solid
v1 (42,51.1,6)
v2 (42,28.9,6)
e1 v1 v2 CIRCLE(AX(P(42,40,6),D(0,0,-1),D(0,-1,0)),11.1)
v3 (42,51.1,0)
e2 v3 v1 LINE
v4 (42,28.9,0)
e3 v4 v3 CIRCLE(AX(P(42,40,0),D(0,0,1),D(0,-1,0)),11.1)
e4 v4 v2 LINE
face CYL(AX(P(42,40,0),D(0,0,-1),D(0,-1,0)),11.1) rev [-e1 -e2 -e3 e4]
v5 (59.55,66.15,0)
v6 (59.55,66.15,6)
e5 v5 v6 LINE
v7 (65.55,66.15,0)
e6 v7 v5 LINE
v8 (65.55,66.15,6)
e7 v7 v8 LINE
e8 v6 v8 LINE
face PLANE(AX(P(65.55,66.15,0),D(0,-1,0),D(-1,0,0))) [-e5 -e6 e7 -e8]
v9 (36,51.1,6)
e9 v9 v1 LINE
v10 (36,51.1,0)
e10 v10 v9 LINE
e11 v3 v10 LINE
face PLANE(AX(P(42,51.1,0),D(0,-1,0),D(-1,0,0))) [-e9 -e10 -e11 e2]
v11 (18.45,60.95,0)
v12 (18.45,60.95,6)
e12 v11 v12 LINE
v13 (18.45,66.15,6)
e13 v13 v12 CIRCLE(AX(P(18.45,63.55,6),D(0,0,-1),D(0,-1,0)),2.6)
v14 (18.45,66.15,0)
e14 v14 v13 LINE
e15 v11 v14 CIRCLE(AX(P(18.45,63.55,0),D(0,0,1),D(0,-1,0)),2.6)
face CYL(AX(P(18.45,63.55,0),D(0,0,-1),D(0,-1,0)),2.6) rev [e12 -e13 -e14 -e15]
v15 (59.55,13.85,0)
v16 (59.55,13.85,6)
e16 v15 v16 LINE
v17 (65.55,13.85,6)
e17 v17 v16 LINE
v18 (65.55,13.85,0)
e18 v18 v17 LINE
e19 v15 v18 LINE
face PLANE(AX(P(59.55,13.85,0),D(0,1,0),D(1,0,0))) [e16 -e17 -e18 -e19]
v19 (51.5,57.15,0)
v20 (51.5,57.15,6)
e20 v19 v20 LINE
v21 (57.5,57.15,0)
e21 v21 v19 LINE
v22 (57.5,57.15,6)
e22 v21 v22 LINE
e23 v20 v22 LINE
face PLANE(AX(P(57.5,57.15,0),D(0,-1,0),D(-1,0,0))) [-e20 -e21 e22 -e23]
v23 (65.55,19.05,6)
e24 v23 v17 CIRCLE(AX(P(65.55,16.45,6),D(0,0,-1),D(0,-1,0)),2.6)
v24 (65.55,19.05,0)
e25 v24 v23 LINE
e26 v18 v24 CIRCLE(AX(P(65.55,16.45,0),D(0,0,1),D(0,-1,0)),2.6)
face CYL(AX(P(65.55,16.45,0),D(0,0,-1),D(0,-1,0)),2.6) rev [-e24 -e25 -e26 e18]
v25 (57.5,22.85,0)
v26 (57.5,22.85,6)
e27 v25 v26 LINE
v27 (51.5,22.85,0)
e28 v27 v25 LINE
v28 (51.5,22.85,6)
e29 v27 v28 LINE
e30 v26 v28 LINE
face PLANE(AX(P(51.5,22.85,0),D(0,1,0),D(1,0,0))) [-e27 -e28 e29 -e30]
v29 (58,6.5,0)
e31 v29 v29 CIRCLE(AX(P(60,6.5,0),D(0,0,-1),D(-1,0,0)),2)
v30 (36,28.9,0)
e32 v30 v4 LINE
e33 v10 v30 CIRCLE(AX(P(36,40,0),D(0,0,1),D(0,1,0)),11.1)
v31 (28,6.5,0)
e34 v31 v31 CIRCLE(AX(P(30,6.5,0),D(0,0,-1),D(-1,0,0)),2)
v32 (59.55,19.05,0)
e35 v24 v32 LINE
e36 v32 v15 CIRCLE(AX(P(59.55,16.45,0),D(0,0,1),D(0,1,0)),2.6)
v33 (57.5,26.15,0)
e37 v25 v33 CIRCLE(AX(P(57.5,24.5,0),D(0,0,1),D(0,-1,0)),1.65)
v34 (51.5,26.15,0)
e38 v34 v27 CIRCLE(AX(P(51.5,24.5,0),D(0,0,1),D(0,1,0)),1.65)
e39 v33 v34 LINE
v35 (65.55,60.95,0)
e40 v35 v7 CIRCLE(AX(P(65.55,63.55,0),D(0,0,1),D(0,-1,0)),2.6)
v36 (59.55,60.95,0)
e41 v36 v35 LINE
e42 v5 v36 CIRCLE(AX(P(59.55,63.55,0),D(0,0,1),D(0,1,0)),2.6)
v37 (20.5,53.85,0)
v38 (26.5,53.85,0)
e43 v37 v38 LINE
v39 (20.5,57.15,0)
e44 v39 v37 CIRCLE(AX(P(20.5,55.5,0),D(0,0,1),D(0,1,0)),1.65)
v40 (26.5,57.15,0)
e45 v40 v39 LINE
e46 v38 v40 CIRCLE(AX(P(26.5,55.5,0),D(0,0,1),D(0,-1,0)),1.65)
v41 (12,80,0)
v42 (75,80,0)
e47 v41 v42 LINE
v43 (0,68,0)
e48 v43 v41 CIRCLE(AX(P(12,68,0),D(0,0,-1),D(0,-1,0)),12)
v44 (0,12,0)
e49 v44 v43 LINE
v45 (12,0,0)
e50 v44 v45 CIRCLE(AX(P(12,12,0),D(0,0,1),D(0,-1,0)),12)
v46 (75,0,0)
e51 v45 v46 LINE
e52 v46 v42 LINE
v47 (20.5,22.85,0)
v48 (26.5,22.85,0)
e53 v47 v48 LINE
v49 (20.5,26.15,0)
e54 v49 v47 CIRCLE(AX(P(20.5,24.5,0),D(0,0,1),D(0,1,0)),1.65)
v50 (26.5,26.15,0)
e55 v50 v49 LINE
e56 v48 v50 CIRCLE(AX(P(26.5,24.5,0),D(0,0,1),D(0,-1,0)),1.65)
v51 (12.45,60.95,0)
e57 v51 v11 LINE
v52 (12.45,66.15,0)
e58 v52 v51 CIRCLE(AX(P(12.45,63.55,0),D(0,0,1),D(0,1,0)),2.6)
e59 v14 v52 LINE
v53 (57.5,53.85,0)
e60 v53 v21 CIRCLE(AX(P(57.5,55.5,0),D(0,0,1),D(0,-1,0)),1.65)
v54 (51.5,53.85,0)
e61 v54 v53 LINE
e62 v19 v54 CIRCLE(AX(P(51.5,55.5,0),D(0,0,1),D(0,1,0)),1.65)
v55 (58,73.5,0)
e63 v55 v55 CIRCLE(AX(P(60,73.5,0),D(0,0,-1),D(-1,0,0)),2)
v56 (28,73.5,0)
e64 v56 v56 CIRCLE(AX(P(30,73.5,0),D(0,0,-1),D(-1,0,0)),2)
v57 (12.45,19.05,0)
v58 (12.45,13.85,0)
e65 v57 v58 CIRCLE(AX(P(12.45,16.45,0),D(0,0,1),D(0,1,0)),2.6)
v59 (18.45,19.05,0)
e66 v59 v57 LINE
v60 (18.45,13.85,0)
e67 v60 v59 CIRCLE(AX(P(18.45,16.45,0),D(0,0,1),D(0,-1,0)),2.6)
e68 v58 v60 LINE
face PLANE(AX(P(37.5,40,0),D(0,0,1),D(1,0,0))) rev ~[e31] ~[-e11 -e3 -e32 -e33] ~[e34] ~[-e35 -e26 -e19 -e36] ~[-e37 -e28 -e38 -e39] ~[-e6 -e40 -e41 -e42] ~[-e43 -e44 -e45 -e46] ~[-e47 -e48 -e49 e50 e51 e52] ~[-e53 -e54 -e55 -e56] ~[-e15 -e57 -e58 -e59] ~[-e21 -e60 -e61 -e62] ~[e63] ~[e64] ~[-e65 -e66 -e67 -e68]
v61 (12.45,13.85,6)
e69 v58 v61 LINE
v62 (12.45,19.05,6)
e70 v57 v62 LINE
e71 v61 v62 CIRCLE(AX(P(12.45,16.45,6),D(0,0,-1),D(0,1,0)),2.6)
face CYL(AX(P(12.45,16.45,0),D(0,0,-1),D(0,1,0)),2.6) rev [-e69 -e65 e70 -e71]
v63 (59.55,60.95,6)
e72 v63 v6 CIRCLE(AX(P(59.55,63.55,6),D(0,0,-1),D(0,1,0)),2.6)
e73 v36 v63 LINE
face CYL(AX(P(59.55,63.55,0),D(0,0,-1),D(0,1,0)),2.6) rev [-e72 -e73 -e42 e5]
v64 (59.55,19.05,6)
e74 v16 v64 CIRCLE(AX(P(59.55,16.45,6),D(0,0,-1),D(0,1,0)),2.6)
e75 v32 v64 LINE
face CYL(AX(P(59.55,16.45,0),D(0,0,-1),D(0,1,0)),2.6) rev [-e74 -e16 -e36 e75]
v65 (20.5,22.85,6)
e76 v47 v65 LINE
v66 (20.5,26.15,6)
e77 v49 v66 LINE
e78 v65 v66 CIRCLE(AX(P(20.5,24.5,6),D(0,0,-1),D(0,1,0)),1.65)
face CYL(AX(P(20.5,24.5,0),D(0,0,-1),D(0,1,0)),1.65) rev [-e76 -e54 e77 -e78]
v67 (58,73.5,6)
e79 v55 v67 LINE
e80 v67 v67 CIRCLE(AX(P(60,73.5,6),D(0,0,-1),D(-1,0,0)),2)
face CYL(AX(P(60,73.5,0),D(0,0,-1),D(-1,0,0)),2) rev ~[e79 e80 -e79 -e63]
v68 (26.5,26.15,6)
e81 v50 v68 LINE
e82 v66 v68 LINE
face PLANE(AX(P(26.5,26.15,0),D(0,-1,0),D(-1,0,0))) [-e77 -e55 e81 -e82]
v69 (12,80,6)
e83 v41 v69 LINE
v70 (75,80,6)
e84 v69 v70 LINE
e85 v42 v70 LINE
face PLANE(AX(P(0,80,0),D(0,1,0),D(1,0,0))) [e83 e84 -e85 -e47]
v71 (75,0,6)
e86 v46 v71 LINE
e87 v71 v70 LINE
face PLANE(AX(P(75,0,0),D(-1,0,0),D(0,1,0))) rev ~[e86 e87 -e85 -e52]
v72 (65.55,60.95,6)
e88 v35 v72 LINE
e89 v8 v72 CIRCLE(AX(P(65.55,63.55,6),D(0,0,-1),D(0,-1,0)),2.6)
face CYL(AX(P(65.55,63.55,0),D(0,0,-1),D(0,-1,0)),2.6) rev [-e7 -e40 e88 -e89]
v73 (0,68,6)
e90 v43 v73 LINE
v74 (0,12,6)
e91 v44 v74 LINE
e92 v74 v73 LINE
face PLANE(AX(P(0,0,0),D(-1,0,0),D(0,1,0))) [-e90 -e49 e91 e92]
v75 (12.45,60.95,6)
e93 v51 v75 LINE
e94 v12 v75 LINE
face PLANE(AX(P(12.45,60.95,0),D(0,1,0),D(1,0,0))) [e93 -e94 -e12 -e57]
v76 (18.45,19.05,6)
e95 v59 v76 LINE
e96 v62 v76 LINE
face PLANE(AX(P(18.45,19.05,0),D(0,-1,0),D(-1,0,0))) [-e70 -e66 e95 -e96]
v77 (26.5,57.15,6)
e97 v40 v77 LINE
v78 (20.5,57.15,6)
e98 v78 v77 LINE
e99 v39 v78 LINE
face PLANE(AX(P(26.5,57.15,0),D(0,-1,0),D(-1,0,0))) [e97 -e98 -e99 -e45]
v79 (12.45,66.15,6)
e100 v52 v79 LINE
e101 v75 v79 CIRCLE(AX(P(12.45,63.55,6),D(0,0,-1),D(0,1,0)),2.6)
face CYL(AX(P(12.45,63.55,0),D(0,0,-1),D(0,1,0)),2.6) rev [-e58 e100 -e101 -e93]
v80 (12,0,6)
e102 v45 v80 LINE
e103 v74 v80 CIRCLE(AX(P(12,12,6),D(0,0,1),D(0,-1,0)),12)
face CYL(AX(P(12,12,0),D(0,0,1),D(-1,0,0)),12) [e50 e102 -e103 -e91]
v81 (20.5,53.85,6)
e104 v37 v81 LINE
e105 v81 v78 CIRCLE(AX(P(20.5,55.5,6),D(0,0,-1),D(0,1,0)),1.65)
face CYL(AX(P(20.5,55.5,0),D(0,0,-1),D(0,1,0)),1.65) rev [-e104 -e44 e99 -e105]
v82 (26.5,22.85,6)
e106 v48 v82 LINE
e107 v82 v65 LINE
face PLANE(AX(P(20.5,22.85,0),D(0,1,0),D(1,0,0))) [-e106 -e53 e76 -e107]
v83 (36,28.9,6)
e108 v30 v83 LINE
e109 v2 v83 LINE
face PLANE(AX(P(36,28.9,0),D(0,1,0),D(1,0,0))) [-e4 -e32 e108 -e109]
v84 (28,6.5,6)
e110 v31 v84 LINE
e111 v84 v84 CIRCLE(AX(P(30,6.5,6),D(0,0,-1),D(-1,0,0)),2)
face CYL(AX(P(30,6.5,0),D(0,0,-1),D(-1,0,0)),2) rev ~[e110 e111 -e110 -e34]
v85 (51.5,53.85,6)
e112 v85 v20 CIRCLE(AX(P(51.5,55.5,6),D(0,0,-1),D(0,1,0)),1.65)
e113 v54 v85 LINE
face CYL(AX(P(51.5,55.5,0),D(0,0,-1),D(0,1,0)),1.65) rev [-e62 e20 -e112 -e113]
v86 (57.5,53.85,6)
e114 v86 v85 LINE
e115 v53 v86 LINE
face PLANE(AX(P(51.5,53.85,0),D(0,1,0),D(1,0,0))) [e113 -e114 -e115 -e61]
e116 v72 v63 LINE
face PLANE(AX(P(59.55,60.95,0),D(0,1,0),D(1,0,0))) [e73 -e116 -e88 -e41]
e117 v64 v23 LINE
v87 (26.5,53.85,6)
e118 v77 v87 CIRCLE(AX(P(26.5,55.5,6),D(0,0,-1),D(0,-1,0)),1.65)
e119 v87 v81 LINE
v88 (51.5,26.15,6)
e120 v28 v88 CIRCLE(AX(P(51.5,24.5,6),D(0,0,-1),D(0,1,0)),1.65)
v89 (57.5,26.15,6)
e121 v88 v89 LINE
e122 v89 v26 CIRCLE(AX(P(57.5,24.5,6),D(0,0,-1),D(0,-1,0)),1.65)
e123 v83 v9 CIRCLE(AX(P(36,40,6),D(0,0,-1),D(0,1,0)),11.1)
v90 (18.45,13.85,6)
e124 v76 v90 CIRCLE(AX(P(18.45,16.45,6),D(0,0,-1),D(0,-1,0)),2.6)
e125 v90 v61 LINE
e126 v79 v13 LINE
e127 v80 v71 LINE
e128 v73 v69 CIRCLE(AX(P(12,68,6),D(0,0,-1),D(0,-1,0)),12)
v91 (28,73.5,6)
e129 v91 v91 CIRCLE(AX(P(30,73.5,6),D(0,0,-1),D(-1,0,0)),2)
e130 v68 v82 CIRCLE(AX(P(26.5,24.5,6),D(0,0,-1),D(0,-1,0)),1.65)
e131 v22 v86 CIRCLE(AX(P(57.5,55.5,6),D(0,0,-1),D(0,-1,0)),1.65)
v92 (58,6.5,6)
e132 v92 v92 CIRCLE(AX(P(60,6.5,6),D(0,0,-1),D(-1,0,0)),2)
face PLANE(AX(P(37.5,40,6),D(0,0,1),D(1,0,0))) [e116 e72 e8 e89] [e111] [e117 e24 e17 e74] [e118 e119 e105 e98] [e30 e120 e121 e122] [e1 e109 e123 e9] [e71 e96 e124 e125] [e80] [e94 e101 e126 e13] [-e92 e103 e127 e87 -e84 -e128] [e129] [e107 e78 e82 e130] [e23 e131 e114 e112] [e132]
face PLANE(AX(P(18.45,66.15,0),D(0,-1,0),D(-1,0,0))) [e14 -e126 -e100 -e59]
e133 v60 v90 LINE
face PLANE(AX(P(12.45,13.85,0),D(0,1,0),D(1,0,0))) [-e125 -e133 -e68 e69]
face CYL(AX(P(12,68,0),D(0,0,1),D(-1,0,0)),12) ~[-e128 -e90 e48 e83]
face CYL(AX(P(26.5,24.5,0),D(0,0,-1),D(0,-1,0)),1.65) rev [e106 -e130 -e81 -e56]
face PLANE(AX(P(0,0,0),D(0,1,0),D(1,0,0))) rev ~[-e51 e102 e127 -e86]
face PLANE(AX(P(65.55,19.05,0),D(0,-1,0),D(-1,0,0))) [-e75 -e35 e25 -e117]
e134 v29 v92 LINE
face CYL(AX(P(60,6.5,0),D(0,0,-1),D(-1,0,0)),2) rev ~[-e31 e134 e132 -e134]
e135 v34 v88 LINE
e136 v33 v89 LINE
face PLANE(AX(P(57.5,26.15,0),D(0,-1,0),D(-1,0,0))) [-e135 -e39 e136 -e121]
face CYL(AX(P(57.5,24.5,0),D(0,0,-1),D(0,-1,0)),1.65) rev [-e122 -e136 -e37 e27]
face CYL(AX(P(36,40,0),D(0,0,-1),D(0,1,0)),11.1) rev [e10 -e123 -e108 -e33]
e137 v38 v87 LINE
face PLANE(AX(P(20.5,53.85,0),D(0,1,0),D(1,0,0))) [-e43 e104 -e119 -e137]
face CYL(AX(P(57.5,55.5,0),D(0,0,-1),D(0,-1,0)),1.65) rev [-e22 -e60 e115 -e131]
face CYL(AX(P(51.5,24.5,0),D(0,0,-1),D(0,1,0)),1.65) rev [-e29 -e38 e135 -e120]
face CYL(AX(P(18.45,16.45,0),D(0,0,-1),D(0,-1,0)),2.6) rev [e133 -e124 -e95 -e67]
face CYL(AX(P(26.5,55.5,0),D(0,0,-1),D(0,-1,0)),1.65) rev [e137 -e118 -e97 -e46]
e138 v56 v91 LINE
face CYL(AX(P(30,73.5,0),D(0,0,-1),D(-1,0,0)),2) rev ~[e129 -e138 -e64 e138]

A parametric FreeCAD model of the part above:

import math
import FreeCAD as App
import Part
import Sketcher

V = App.Vector


def edges_at(feature, points):
    """Names of the edges that pass closest to the given points."""
    edges = feature.Shape.Edges
    near = lambda p: min(range(len(edges)), key=lambda i: edges[i].distToShape(Part.Vertex(*p))[0])
    return sorted({f"Edge{near(p) + 1}" for p in points})


def add_polygon(sketch, points):
    """Adds a closed chain of lines whose ends are joined by coincident constraints."""
    first, n = sketch.GeometryCount, len(points)
    for a, b in zip(points, points[1:] + points[:1]):
        sketch.addGeometry(Part.LineSegment(App.Vector(*a, 0), App.Vector(*b, 0)), False)
    for i in range(n):
        sketch.addConstraint(Sketcher.Constraint("Coincident", first + i, 2, first + (i + 1) % n, 1))

doc = App.newDocument("Part")
body = doc.addObject("PartDesign::Body", "Body")

sketch1 = body.newObject("Sketcher::SketchObject", "Sketch")
sketch1.AttachmentSupport = (doc.getObject("XY_Plane"), [""])
sketch1.MapMode = "FlatFace"
add_polygon(sketch1, [(0, 80), (0, 0), (75, 0), (75, 80)])
sketch1.addConstraint([
    Sketcher.Constraint("Vertical", 0),
    Sketcher.Constraint("Horizontal", 1),
    Sketcher.Constraint("Vertical", 2),
    Sketcher.Constraint("Horizontal", 3),
    Sketcher.Constraint("Coincident", 0, 2, -1, 1),
    Sketcher.Constraint("DistanceX", 1, 1, 1, 2, 75.0),
    Sketcher.Constraint("DistanceY", 0, 2, 0, 1, 80.0),
])
pad1 = body.newObject("PartDesign::Pad", "Pad")
pad1.Profile = sketch1
pad1.Length = 6

sketch2 = body.newObject("Sketcher::SketchObject", "Sketch001")
sketch2.AttachmentSupport = (doc.getObject("XY_Plane"), [""])
sketch2.MapMode = "FlatFace"
sketch2.addGeometry([
    Part.LineSegment(V(42, 28.9, 0), V(36, 28.9, 0)),
    Part.ArcOfCircle(Part.Circle(V(36, 40, 0), V(0, 0, 1), 11.1), math.radians(90), math.radians(270)),
    Part.LineSegment(V(36, 51.1, 0), V(42, 51.1, 0)),
    Part.ArcOfCircle(Part.Circle(V(42, 40, 0), V(0, 0, 1), 11.1), math.radians(-90), math.radians(90)),
    Part.LineSegment(V(26.5, 22.9, 0), V(20.5, 22.9, 0)),
    Part.ArcOfCircle(Part.Circle(V(20.5, 24.5, 0), V(0, 0, 1), 1.6), math.radians(90), math.radians(270)),
    Part.LineSegment(V(20.5, 26.1, 0), V(26.5, 26.1, 0)),
    Part.ArcOfCircle(Part.Circle(V(26.5, 24.5, 0), V(0, 0, 1), 1.6), math.radians(-90), math.radians(90)),
    Part.LineSegment(V(57.5, 53.9, 0), V(51.5, 53.9, 0)),
    Part.ArcOfCircle(Part.Circle(V(51.5, 55.5, 0), V(0, 0, 1), 1.6), math.radians(90), math.radians(270)),
    Part.LineSegment(V(51.5, 57.1, 0), V(57.5, 57.1, 0)),
    Part.ArcOfCircle(Part.Circle(V(57.5, 55.5, 0), V(0, 0, 1), 1.6), math.radians(-90), math.radians(90)),
    Part.LineSegment(V(57.5, 22.9, 0), V(51.5, 22.9, 0)),
    Part.ArcOfCircle(Part.Circle(V(51.5, 24.5, 0), V(0, 0, 1), 1.6), math.radians(90), math.radians(270)),
    Part.LineSegment(V(51.5, 26.1, 0), V(57.5, 26.1, 0)),
    Part.ArcOfCircle(Part.Circle(V(57.5, 24.5, 0), V(0, 0, 1), 1.6), math.radians(-90), math.radians(90)),
    Part.LineSegment(V(26.5, 53.9, 0), V(20.5, 53.9, 0)),
    Part.ArcOfCircle(Part.Circle(V(20.5, 55.5, 0), V(0, 0, 1), 1.6), math.radians(90), math.radians(270)),
    Part.LineSegment(V(20.5, 57.1, 0), V(26.5, 57.1, 0)),
    Part.ArcOfCircle(Part.Circle(V(26.5, 55.5, 0), V(0, 0, 1), 1.6), math.radians(-90), math.radians(90)),
    Part.LineSegment(V(18.4, 13.8, 0), V(12.4, 13.8, 0)),
    Part.ArcOfCircle(Part.Circle(V(12.4, 16.4, 0), V(0, 0, 1), 2.6), math.radians(90), math.radians(270)),
    Part.LineSegment(V(12.4, 19.1, 0), V(18.4, 19.1, 0)),
    Part.ArcOfCircle(Part.Circle(V(18.4, 16.4, 0), V(0, 0, 1), 2.6), math.radians(-90), math.radians(90)),
    Part.LineSegment(V(65.5, 13.8, 0), V(59.5, 13.8, 0)),
    Part.ArcOfCircle(Part.Circle(V(59.5, 16.4, 0), V(0, 0, 1), 2.6), math.radians(90), math.radians(270)),
    Part.LineSegment(V(59.5, 19.1, 0), V(65.5, 19.1, 0)),
    Part.ArcOfCircle(Part.Circle(V(65.5, 16.4, 0), V(0, 0, 1), 2.6), math.radians(-90), math.radians(90)),
    Part.LineSegment(V(18.4, 61, 0), V(12.4, 61, 0)),
    Part.ArcOfCircle(Part.Circle(V(12.4, 63.5, 0), V(0, 0, 1), 2.6), math.radians(90), math.radians(270)),
    Part.LineSegment(V(12.4, 66.2, 0), V(18.4, 66.2, 0)),
    Part.ArcOfCircle(Part.Circle(V(18.4, 63.5, 0), V(0, 0, 1), 2.6), math.radians(-90), math.radians(90)),
    Part.LineSegment(V(65.5, 61, 0), V(59.5, 61, 0)),
    Part.ArcOfCircle(Part.Circle(V(59.5, 63.5, 0), V(0, 0, 1), 2.6), math.radians(90), math.radians(270)),
    Part.LineSegment(V(59.5, 66.2, 0), V(65.5, 66.2, 0)),
    Part.ArcOfCircle(Part.Circle(V(65.5, 63.5, 0), V(0, 0, 1), 2.6), math.radians(-90), math.radians(90)),
], False)
sketch2.addConstraint([
    Sketcher.Constraint("Tangent", 0, 2, 1, 2),
    Sketcher.Constraint("Tangent", 1, 1, 2, 1),
    Sketcher.Constraint("Tangent", 2, 2, 3, 2),
    Sketcher.Constraint("Tangent", 3, 1, 0, 1),
    Sketcher.Constraint("Tangent", 4, 2, 5, 2),
    Sketcher.Constraint("Tangent", 5, 1, 6, 1),
    Sketcher.Constraint("Tangent", 6, 2, 7, 2),
    Sketcher.Constraint("Tangent", 7, 1, 4, 1),
    Sketcher.Constraint("Tangent", 8, 2, 9, 2),
    Sketcher.Constraint("Tangent", 9, 1, 10, 1),
    Sketcher.Constraint("Tangent", 10, 2, 11, 2),
    Sketcher.Constraint("Tangent", 11, 1, 8, 1),
    Sketcher.Constraint("Tangent", 12, 2, 13, 2),
    Sketcher.Constraint("Tangent", 13, 1, 14, 1),
    Sketcher.Constraint("Tangent", 14, 2, 15, 2),
    Sketcher.Constraint("Tangent", 15, 1, 12, 1),
    Sketcher.Constraint("Tangent", 16, 2, 17, 2),
    Sketcher.Constraint("Tangent", 17, 1, 18, 1),
    Sketcher.Constraint("Tangent", 18, 2, 19, 2),
    Sketcher.Constraint("Tangent", 19, 1, 16, 1),
    Sketcher.Constraint("Tangent", 20, 2, 21, 2),
    Sketcher.Constraint("Tangent", 21, 1, 22, 1),
    Sketcher.Constraint("Tangent", 22, 2, 23, 2),
    Sketcher.Constraint("Tangent", 23, 1, 20, 1),
    Sketcher.Constraint("Tangent", 24, 2, 25, 2),
    Sketcher.Constraint("Tangent", 25, 1, 26, 1),
    Sketcher.Constraint("Tangent", 26, 2, 27, 2),
    Sketcher.Constraint("Tangent", 27, 1, 24, 1),
    Sketcher.Constraint("Tangent", 28, 2, 29, 2),
    Sketcher.Constraint("Tangent", 29, 1, 30, 1),
    Sketcher.Constraint("Tangent", 30, 2, 31, 2),
    Sketcher.Constraint("Tangent", 31, 1, 28, 1),
    Sketcher.Constraint("Tangent", 32, 2, 33, 2),
    Sketcher.Constraint("Tangent", 33, 1, 34, 1),
    Sketcher.Constraint("Tangent", 34, 2, 35, 2),
    Sketcher.Constraint("Tangent", 35, 1, 32, 1),
    Sketcher.Constraint("Horizontal", 0),
    Sketcher.Constraint("Horizontal", 2),
    Sketcher.Constraint("Horizontal", 4),
    Sketcher.Constraint("Horizontal", 6),
    Sketcher.Constraint("Horizontal", 8),
    Sketcher.Constraint("Horizontal", 10),
    Sketcher.Constraint("Horizontal", 12),
    Sketcher.Constraint("Horizontal", 14),
    Sketcher.Constraint("Horizontal", 16),
    Sketcher.Constraint("Horizontal", 18),
    Sketcher.Constraint("Horizontal", 20),
    Sketcher.Constraint("Horizontal", 22),
    Sketcher.Constraint("Horizontal", 24),
    Sketcher.Constraint("Horizontal", 26),
    Sketcher.Constraint("Horizontal", 28),
    Sketcher.Constraint("Horizontal", 30),
    Sketcher.Constraint("Horizontal", 32),
    Sketcher.Constraint("Horizontal", 34),
    Sketcher.Constraint("Equal", 7, 9),
    Sketcher.Constraint("Equal", 11, 13),
    Sketcher.Constraint("Equal", 15, 17),
    Sketcher.Constraint("Equal", 23, 25),
    Sketcher.Constraint("Equal", 27, 29),
    Sketcher.Constraint("Equal", 31, 33),
    Sketcher.Constraint("Horizontal", 7, 3, 13, 3),
    Sketcher.Constraint("Horizontal", 11, 3, 17, 3),
    Sketcher.Constraint("Horizontal", 23, 3, 25, 3),
    Sketcher.Constraint("Horizontal", 31, 3, 33, 3),
    Sketcher.Constraint("Vertical", 9, 3, 13, 3),
    Sketcher.Constraint("Vertical", 11, 3, 15, 3),
    Sketcher.Constraint("Vertical", 5, 3, 17, 3),
    Sketcher.Constraint("Vertical", 7, 3, 19, 3),
    Sketcher.Constraint("Vertical", 21, 3, 29, 3),
    Sketcher.Constraint("Vertical", 23, 3, 31, 3),
    Sketcher.Constraint("Vertical", 25, 3, 33, 3),
    Sketcher.Constraint("Vertical", 27, 3, 35, 3),
    Sketcher.Constraint("Equal", 2, 4),
    Sketcher.Constraint("Equal", 6, 8),
    Sketcher.Constraint("Equal", 18, 20),
    Sketcher.Constraint("Equal", 22, 24),
    Sketcher.Constraint("Radius", 1, 11.1),
    Sketcher.Constraint("Radius", 21, 2.6),
    Sketcher.Constraint("DistanceX", 0, 2, 0, 1, 6.0),
    Sketcher.Constraint("Radius", 5, 1.65),
    Sketcher.Constraint("DistanceX", -1, 1, 1, 3, 36.0),
    Sketcher.Constraint("DistanceY", -1, 1, 1, 3, 40.0),
    Sketcher.Constraint("DistanceX", 7, 3, 9, 3, 25.0),
    Sketcher.Constraint("DistanceY", 7, 3, 9, 3, 31.0),
    Sketcher.Constraint("DistanceY", 20, 2, 4, 2, 9.0),
    Sketcher.Constraint("DistanceY", 17, 1, 29, 1, 9.0),
    Sketcher.Constraint("DistanceX", -1, 1, 5, 3, 20.5),
    Sketcher.Constraint("DistanceY", -1, 1, 5, 3, 24.5),
    Sketcher.Constraint("DistanceX", -1, 1, 21, 3, 12.45),
    Sketcher.Constraint("DistanceX", -1, 1, 25, 3, 59.55),
])
pocket1 = body.newObject("PartDesign::Pocket", "Pocket")
pocket1.Profile = sketch2
pocket1.Type = "ThroughAll"
pocket1.Reversed = True
doc.recompute()

fillet = body.newObject("PartDesign::Fillet", "Fillet")
fillet.Base = (pocket1, edges_at(pocket1, [(0, 80, 3), (0, 0, 3)]))
fillet.Radius = 12

sketch3 = body.newObject("Sketcher::SketchObject", "Sketch002")
sketch3.AttachmentSupport = (doc.getObject("XY_Plane"), [""])
sketch3.MapMode = "FlatFace"
sketch3.addGeometry([
    Part.Circle(V(60, 6.5, 0), V(0, 0, 1), 2),
    Part.Circle(V(30, 6.5, 0), V(0, 0, 1), 2),
    Part.Circle(V(60, 73.5, 0), V(0, 0, 1), 2),
    Part.Circle(V(30, 73.5, 0), V(0, 0, 1), 2),
], False)
sketch3.addConstraint([
    Sketcher.Constraint("Equal", 0, 1),
    Sketcher.Constraint("Equal", 1, 2),
    Sketcher.Constraint("Equal", 2, 3),
    Sketcher.Constraint("Horizontal", 0, 3, 1, 3),
    Sketcher.Constraint("Horizontal", 2, 3, 3, 3),
    Sketcher.Constraint("Vertical", 0, 3, 2, 3),
    Sketcher.Constraint("Vertical", 1, 3, 3, 3),
    Sketcher.Constraint("Diameter", 0, 4.0),
    Sketcher.Constraint("DistanceX", -1, 1, 0, 3, 60.0),
    Sketcher.Constraint("DistanceX", -1, 1, 1, 3, 30.0),
    Sketcher.Constraint("DistanceY", 0, 3, 2, 3, 67.0),
    Sketcher.Constraint("DistanceY", -1, 1, 0, 3, 6.5),
])
pocket2 = body.newObject("PartDesign::Pocket", "Pocket001")
pocket2.Profile = sketch3
pocket2.Type = "ThroughAll"
pocket2.Reversed = True

doc.recompute()
